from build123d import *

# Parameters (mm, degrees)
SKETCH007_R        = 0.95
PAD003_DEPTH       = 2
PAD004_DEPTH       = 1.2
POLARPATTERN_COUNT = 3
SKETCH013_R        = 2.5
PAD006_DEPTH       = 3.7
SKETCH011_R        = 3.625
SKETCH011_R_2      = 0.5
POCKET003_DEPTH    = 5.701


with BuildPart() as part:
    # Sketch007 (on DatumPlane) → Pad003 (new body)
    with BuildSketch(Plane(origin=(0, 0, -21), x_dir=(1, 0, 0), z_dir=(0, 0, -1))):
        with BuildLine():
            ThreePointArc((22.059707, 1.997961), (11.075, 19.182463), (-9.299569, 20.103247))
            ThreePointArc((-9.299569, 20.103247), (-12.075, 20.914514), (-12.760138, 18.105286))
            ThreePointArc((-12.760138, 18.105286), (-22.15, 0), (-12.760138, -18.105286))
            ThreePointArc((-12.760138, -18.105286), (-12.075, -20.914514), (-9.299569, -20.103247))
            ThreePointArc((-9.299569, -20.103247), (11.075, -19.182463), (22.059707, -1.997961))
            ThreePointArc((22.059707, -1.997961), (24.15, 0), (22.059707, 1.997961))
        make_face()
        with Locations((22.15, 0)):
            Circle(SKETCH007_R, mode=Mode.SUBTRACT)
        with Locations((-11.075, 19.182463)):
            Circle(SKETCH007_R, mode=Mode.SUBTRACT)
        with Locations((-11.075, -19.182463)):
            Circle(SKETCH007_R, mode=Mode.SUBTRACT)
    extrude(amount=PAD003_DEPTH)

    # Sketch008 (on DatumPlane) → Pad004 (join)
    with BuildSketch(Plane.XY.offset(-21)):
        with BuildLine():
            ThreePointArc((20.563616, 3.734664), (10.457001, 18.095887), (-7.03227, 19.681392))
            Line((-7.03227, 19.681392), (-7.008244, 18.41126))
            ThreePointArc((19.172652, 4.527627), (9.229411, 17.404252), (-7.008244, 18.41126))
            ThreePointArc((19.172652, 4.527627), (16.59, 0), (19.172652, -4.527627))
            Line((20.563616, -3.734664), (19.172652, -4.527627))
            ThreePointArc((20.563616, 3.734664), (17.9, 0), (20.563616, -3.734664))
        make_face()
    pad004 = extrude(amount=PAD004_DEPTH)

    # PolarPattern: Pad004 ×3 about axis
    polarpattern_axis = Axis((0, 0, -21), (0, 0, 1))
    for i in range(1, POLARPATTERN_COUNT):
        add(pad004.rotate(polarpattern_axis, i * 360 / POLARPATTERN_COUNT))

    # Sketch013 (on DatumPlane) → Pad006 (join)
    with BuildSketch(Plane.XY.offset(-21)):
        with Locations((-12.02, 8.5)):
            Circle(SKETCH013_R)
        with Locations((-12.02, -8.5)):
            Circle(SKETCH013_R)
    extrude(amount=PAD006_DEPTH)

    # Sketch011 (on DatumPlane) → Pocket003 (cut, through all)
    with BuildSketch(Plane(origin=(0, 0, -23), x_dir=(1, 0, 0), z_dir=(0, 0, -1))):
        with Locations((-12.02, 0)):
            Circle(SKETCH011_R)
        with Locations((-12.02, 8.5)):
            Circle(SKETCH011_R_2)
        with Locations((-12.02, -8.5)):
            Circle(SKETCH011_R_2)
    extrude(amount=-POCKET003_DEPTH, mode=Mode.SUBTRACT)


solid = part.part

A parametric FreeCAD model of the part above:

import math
import FreeCAD as App
import Part
import Sketcher
from FreeCAD import Vector
Q = App.Units.Quantity

doc = App.newDocument("Part")
body = doc.addObject("PartDesign::Body", "Body")

# Sketch on XY plane
sketch1 = body.newObject("Sketcher::SketchObject", "Sketch")
sketch1.AttachmentSupport = (doc.getObject("XY_Plane"), [""])
sketch1.MapMode = "FlatFace"
sketch1.AttachmentOffset = App.Placement(Vector(0, 0, -21), App.Rotation())
sketch1.addGeometry([
    Part.ArcOfCircle(Part.Circle(Vector(0, 0, 0), Vector(0, 0, 1), 22.2), math.radians(-115), math.radians(-5)),  # 0
    Part.ArcOfCircle(Part.Circle(Vector(-11.1, -19.2, 0), Vector(0, 0, 1), 2), math.radians(147), math.radians(333)),  # 1
    Part.ArcOfCircle(Part.Circle(Vector(0, 0, 0), Vector(0, 0, 1), 22.2), math.radians(125), math.radians(235)),  # 2
    Part.ArcOfCircle(Part.Circle(Vector(-11.1, 19.2, 0), Vector(0, 0, 1), 2), math.radians(27), math.radians(213)),  # 3
    Part.ArcOfCircle(Part.Circle(Vector(0, 0, 0), Vector(0, 0, 1), 22.2), math.radians(5), math.radians(115)),  # 4
    Part.ArcOfCircle(Part.Circle(Vector(22.1, 0, 0), Vector(0, 0, 1), 2), math.radians(-93), math.radians(93)),  # 5
    Part.Circle(Vector(-11.1, 19.2, 0), Vector(0, 0, 1), 0.9),  # 6
    Part.Circle(Vector(-11.1, -19.2, 0), Vector(0, 0, 1), 0.9),  # 7
    Part.Circle(Vector(22.1, 0, 0), Vector(0, 0, 1), 0.9),  # 8
], False)
sketch1.addConstraint([
    Sketcher.Constraint("Coincident", 0, 1, 1, 2),
    Sketcher.Constraint("Coincident", 1, 1, 2, 2),
    Sketcher.Constraint("Coincident", 2, 1, 3, 2),
    Sketcher.Constraint("Coincident", 3, 1, 4, 2),
    Sketcher.Constraint("Coincident", 4, 1, 5, 2),
    Sketcher.Constraint("Coincident", 5, 1, 0, 2),
    Sketcher.Constraint("Coincident", 0, 3, -1, 1),
    Sketcher.Constraint("Coincident", 2, 3, -1, 1),
    Sketcher.Constraint("Coincident", 4, 3, -1, 1),
    Sketcher.Constraint("Coincident", 6, 3, 3, 3),
    Sketcher.Constraint("Coincident", 7, 3, 1, 3),
    Sketcher.Constraint("Coincident", 8, 3, 5, 3),
    Sketcher.Constraint("Equal", 0, 2),
    Sketcher.Constraint("Equal", 1, 3),
    Sketcher.Constraint("Equal", 2, 4),
    Sketcher.Constraint("Equal", 3, 5),
    Sketcher.Constraint("Equal", 6, 7),
    Sketcher.Constraint("Equal", 7, 8),
    Sketcher.Constraint("Symmetric", 1, 3, 3, 3, -1),
    Sketcher.Constraint("PointOnObject", 5, 3, -1),
    Sketcher.Constraint("Radius", 1, Q("2 mm")),
    Sketcher.Constraint("Diameter", 6, Q("1.9 mm")),
    Sketcher.Constraint("Radius", 0, Q("22.150001 mm")),
    Sketcher.Constraint("DistanceX", -1, 1, 5, 3, Q("22.15 mm")),
    Sketcher.Constraint("DistanceX", 1, 3, -1, 1, Q("11.075 mm")),
    Sketcher.Constraint("DistanceX", 0, 1, -1, 1, Q("9.299569 mm")),
])
pad1 = body.newObject("PartDesign::Pad", "Pad")
pad1.Profile = sketch1
pad1.Length = 2
pad1.Reversed = True

# Sketch on XY plane
sketch2 = body.newObject("Sketcher::SketchObject", "Sketch001")
sketch2.AttachmentSupport = (doc.getObject("XY_Plane"), [""])
sketch2.MapMode = "FlatFace"
sketch2.AttachmentOffset = App.Placement(Vector(0, 0, -21), App.Rotation())
sketch2.addGeometry([
    Part.ArcOfCircle(Part.Circle(Vector(0, 0, 0), Vector(0, 0, 1), 20.9), math.radians(10), math.radians(110)),  # 0
    Part.LineSegment(Vector(-7, 19.7, 0), Vector(-7, 18.4, 0)),  # 1
    Part.ArcOfCircle(Part.Circle(Vector(0, 0, 0), Vector(0, 0, 1), 19.7), math.radians(13), math.radians(111)),  # 2
    Part.ArcOfCircle(Part.Circle(Vector(21.8, 0, 0), Vector(0, 0, 1), 5.3), math.radians(121), math.radians(239)),  # 3
    Part.LineSegment(Vector(19.2, -4.5, 0), Vector(20.6, -3.7, 0)),  # 4
    Part.ArcOfCircle(Part.Circle(Vector(21.8, 0, 0), Vector(0, 0, 1), 3.9), math.radians(109), math.radians(251)),  # 5
], False)
sketch2.addConstraint([
    Sketcher.Constraint("Coincident", 0, 2, 1, 1),
    Sketcher.Constraint("Coincident", 1, 2, 2, 2),
    Sketcher.Constraint("Coincident", 2, 1, 3, 1),
    Sketcher.Constraint("Coincident", 3, 2, 4, 1),
    Sketcher.Constraint("Coincident", 4, 2, 5, 2),
    Sketcher.Constraint("Coincident", 5, 1, 0, 1),
    Sketcher.Constraint("Coincident", 0, 3, -1, 1),
    Sketcher.Constraint("Coincident", 2, 3, -1, 1),
    Sketcher.Constraint("Coincident", 5, 3, 3, 3),
    Sketcher.Constraint("Symmetric", 2, 1, 3, 2, -1),
    Sketcher.Constraint("Vertical", 4, 2, 5, 1),
    Sketcher.Constraint("Radius", 0, Q("20.900001 mm")),
    Sketcher.Constraint("Radius", 2, Q("19.699998 mm")),
    Sketcher.Constraint("Radius", 3, Q("5.26 mm")),
    Sketcher.Constraint("Radius", 5, Q("3.95 mm")),
    Sketcher.Constraint("DistanceX", -1, 1, 3, 3, Q("21.85 mm")),
    Sketcher.Constraint("Distance", 1, Q("1.270359 mm")),
    Sketcher.Constraint("DistanceX", 0, 2, -1, 1, Q("7.03227 mm")),
])
pad2 = body.newObject("PartDesign::Pad", "Pad001")
pad2.Profile = sketch2
pad2.Length = 1.2
doc.recompute()

polarpattern = body.newObject("PartDesign::PolarPattern", "PolarPattern")
polarpattern.Originals = [pad2]
polarpattern.Axis = (doc.getObject("Z_Axis"), [""])
polarpattern.Angle = 360
polarpattern.Occurrences = 3
body.Tip = polarpattern

# Sketch on XY plane
sketch3 = body.newObject("Sketcher::SketchObject", "Sketch002")
sketch3.AttachmentSupport = (doc.getObject("XY_Plane"), [""])
sketch3.MapMode = "FlatFace"
sketch3.AttachmentOffset = App.Placement(Vector(0, 0, -21), App.Rotation())
sketch3.addGeometry([
    Part.Circle(Vector(-12, 8.5, 0), Vector(0, 0, 1), 2.5),
    Part.Circle(Vector(-12, -8.5, 0), Vector(0, 0, 1), 2.5),
], False)
sketch3.addConstraint([
    Sketcher.Constraint("Equal", 0, 1),
    Sketcher.Constraint("Symmetric", 0, 3, 1, 3, -1),
    Sketcher.Constraint("Diameter", 0, Q("5 mm")),
    Sketcher.Constraint("DistanceY", 1, 3, 0, 3, Q("17 mm")),
    Sketcher.Constraint("DistanceX", 0, 3, -1, 1, Q("12.02 mm")),
])
pad3 = body.newObject("PartDesign::Pad", "Pad002")
pad3.Profile = sketch3
pad3.Length = 3.7

# Sketch on XY plane
sketch4 = body.newObject("Sketcher::SketchObject", "Sketch003")
sketch4.AttachmentSupport = (doc.getObject("XY_Plane"), [""])
sketch4.MapMode = "FlatFace"
sketch4.AttachmentOffset = App.Placement(Vector(0, 0, -23), App.Rotation())
sketch4.addGeometry([
    Part.Circle(Vector(-12, 0, 0), Vector(0, 0, 1), 3.6),
    Part.Circle(Vector(-12, -8.5, 0), Vector(0, 0, 1), 0.5),
    Part.Circle(Vector(-12, 8.5, 0), Vector(0, 0, 1), 0.5),
], False)
sketch4.addConstraint([
    Sketcher.Constraint("Equal", 1, 2),
    Sketcher.Constraint("Symmetric", 1, 3, 2, 3, -1),
    Sketcher.Constraint("PointOnObject", 0, 3, -1),
    Sketcher.Constraint("Vertical", 0, 3, 1, 3),
    Sketcher.Constraint("Diameter", 1, Q("1 mm")),
    Sketcher.Constraint("Diameter", 0, Q("7.25 mm")),
    Sketcher.Constraint("DistanceY", 1, 3, 2, 3, Q("17 mm")),
    Sketcher.Constraint("DistanceX", 0, 3, -1, 1, Q("12.02 mm")),
])
pocket1 = body.newObject("PartDesign::Pocket", "Pocket")
pocket1.Profile = sketch4
pocket1.Type = "ThroughAll"
pocket1.Reversed = True

doc.recompute()
